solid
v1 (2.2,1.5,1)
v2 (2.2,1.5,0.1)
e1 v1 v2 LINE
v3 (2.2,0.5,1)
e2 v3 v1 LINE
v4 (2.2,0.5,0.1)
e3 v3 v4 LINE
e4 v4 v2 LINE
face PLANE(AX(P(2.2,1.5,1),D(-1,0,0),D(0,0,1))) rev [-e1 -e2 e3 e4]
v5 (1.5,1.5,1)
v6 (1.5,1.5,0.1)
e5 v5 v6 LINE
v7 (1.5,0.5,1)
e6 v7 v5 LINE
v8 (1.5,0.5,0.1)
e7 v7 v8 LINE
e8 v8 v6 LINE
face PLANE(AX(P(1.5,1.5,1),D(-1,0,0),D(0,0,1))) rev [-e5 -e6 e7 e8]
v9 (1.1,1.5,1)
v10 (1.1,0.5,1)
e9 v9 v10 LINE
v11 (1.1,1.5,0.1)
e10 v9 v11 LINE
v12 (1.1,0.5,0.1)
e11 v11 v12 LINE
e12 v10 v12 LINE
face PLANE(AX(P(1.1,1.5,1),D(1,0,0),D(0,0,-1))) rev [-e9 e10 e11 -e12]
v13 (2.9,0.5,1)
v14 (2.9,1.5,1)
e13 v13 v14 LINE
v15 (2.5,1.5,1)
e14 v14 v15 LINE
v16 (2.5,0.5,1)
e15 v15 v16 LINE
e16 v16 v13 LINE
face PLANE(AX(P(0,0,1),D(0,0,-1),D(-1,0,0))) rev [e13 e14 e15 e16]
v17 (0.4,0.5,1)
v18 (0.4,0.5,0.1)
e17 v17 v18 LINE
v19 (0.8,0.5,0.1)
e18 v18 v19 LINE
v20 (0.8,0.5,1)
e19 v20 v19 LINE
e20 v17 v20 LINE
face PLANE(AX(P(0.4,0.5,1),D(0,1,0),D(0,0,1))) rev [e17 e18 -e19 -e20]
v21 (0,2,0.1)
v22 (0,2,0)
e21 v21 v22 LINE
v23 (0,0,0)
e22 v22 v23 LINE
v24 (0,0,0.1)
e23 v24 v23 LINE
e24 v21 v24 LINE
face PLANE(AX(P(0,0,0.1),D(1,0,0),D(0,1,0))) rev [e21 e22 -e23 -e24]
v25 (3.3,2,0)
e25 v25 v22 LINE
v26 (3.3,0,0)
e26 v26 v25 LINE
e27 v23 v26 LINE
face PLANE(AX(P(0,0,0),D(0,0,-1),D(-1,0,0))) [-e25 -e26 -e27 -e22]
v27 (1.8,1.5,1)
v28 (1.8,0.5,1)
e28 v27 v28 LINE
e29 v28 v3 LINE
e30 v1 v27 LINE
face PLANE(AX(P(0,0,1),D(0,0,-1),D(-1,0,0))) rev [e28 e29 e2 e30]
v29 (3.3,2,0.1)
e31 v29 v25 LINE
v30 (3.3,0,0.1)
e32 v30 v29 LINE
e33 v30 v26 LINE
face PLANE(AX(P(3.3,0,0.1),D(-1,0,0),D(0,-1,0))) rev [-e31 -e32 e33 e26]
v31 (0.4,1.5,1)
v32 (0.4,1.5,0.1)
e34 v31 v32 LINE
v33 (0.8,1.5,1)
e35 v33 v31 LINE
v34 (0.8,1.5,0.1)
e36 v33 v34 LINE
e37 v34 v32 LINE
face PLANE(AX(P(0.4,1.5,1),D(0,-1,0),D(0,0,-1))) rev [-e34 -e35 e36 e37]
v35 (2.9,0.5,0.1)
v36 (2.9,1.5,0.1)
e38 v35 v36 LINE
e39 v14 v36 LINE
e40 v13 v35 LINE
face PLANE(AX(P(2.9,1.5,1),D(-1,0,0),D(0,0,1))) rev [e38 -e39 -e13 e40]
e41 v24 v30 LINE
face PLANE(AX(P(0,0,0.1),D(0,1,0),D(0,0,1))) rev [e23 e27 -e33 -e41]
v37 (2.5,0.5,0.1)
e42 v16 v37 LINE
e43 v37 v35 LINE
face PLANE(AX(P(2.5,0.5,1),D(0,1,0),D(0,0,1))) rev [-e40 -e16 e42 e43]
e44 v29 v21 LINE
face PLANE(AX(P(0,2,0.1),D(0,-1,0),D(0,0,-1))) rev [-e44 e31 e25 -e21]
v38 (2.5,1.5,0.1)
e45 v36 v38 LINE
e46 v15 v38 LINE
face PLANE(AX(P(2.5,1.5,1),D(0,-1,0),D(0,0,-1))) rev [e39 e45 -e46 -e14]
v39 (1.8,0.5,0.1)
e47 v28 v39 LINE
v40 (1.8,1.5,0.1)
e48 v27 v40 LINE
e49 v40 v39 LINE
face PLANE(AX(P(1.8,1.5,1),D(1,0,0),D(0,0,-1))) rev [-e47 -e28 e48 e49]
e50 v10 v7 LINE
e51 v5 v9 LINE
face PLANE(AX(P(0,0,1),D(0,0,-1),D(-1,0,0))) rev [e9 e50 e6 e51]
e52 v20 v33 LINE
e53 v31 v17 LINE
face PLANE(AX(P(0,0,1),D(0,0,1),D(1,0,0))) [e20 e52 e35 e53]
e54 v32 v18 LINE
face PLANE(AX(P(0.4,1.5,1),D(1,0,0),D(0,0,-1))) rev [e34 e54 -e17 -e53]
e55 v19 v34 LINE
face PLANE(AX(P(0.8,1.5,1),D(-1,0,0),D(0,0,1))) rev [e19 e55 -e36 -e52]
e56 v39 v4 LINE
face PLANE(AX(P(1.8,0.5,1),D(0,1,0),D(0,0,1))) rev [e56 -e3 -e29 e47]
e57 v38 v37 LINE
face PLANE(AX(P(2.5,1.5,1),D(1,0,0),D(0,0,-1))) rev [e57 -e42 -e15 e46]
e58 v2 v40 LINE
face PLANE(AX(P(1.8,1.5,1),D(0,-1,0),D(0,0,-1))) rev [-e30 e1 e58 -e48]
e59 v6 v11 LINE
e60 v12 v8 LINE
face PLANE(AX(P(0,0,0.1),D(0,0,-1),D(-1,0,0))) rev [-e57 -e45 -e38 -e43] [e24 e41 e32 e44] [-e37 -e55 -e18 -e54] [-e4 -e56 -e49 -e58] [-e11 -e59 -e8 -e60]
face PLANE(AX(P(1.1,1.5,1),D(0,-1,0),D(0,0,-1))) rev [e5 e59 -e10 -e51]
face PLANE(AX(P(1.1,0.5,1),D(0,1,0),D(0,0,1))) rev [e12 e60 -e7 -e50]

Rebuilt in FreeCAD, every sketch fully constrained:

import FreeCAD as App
import Part
import Sketcher

V = App.Vector
Q = App.Units.Quantity

doc = App.newDocument("Part")
params = doc.addObject("Spreadsheet::Sheet", "Params")
for row, (alias, value) in enumerate([
    ("sketch1_height", "2 mm"),
    ("sketch1_width", "3.3 mm"),
    ("pad1_length", "0.1 mm"),
    ("sketch2_height", "1 mm"),
    ("sketch2_width", "0.4 mm"),
    ("pad2_length", "0.9 mm"),
], start=1):
    params.set(f"A{row}", alias)
    params.set(f"B{row}", "=" + value)
    params.setAlias(f"B{row}", alias)

body = doc.addObject("PartDesign::Body", "Body")

sketch1 = doc.addObject("Sketcher::SketchObject", "Sketch")
body.addObject(sketch1)
sketch1.AttachmentSupport = (doc.XY_Plane, [""])
sketch1.MapMode = "FlatFace"
sketch1.addGeometry(Part.LineSegment(V(0, 2, 0), V(0, 0, 0)), False)
sketch1.addGeometry(Part.LineSegment(V(0, 0, 0), V(3.3, 0, 0)), False)
sketch1.addGeometry(Part.LineSegment(V(3.3, 0, 0), V(3.3, 2, 0)), False)
sketch1.addGeometry(Part.LineSegment(V(3.3, 2, 0), V(0, 2, 0)), False)
sketch1.addConstraint(Sketcher.Constraint("Coincident", 0, 2, 1, 1))
sketch1.addConstraint(Sketcher.Constraint("Coincident", 1, 2, 2, 1))
sketch1.addConstraint(Sketcher.Constraint("Coincident", 2, 2, 3, 1))
sketch1.addConstraint(Sketcher.Constraint("Coincident", 3, 2, 0, 1))
sketch1.addConstraint(Sketcher.Constraint("Vertical", 0))
sketch1.addConstraint(Sketcher.Constraint("Horizontal", 1))
sketch1.addConstraint(Sketcher.Constraint("Vertical", 2))
sketch1.addConstraint(Sketcher.Constraint("Horizontal", 3))
sketch1.addConstraint(Sketcher.Constraint("Coincident", 0, 2, -1, 1))
sketch1.addConstraint(Sketcher.Constraint("DistanceY", 0, 2, 0, 1, Q("2 mm")))
sketch1.addConstraint(Sketcher.Constraint("DistanceX", 1, 1, 1, 2, Q("3.3 mm")))
sketch1.setExpression("Constraints[9]", "Params.sketch1_height")
sketch1.setExpression("Constraints[10]", "Params.sketch1_width")
pad1 = doc.addObject("PartDesign::Pad", "Pad")
body.addObject(pad1)
pad1.Profile = sketch1
pad1.setExpression("Length", "Params.pad1_length")

sketch2 = doc.addObject("Sketcher::SketchObject", "Sketch001")
body.addObject(sketch2)
sketch2.AttachmentSupport = (doc.XY_Plane, [""])
sketch2.MapMode = "FlatFace"
sketch2.AttachmentOffset = App.Placement(V(0, 0, 0.1), App.Rotation())
sketch2.addGeometry(Part.LineSegment(V(0.4, 1.5, 0), V(0.4, 0.5, 0)), False)
sketch2.addGeometry(Part.LineSegment(V(0.4, 0.5, 0), V(0.8, 0.5, 0)), False)
sketch2.addGeometry(Part.LineSegment(V(0.8, 0.5, 0), V(0.8, 1.5, 0)), False)
sketch2.addGeometry(Part.LineSegment(V(0.8, 1.5, 0), V(0.4, 1.5, 0)), False)
sketch2.addGeometry(Part.LineSegment(V(1.1, 1.5, 0), V(1.1, 0.5, 0)), False)
sketch2.addGeometry(Part.LineSegment(V(1.1, 0.5, 0), V(1.5, 0.5, 0)), False)
sketch2.addGeometry(Part.LineSegment(V(1.5, 0.5, 0), V(1.5, 1.5, 0)), False)
sketch2.addGeometry(Part.LineSegment(V(1.5, 1.5, 0), V(1.1, 1.5, 0)), False)
sketch2.addGeometry(Part.LineSegment(V(1.8, 1.5, 0), V(1.8, 0.5, 0)), False)
sketch2.addGeometry(Part.LineSegment(V(1.8, 0.5, 0), V(2.2, 0.5, 0)), False)
sketch2.addGeometry(Part.LineSegment(V(2.2, 0.5, 0), V(2.2, 1.5, 0)), False)
sketch2.addGeometry(Part.LineSegment(V(2.2, 1.5, 0), V(1.8, 1.5, 0)), False)
sketch2.addGeometry(Part.LineSegment(V(2.5, 1.5, 0), V(2.5, 0.5, 0)), False)
sketch2.addGeometry(Part.LineSegment(V(2.5, 0.5, 0), V(2.9, 0.5, 0)), False)
sketch2.addGeometry(Part.LineSegment(V(2.9, 0.5, 0), V(2.9, 1.5, 0)), False)
sketch2.addGeometry(Part.LineSegment(V(2.9, 1.5, 0), V(2.5, 1.5, 0)), False)
sketch2.addConstraint(Sketcher.Constraint("Coincident", 0, 2, 1, 1))
sketch2.addConstraint(Sketcher.Constraint("Coincident", 1, 2, 2, 1))
sketch2.addConstraint(Sketcher.Constraint("Coincident", 2, 2, 3, 1))
sketch2.addConstraint(Sketcher.Constraint("Coincident", 3, 2, 0, 1))
sketch2.addConstraint(Sketcher.Constraint("Coincident", 4, 2, 5, 1))
sketch2.addConstraint(Sketcher.Constraint("Coincident", 5, 2, 6, 1))
sketch2.addConstraint(Sketcher.Constraint("Coincident", 6, 2, 7, 1))
sketch2.addConstraint(Sketcher.Constraint("Coincident", 7, 2, 4, 1))
sketch2.addConstraint(Sketcher.Constraint("Coincident", 8, 2, 9, 1))
sketch2.addConstraint(Sketcher.Constraint("Coincident", 9, 2, 10, 1))
sketch2.addConstraint(Sketcher.Constraint("Coincident", 10, 2, 11, 1))
sketch2.addConstraint(Sketcher.Constraint("Coincident", 11, 2, 8, 1))
sketch2.addConstraint(Sketcher.Constraint("Coincident", 12, 2, 13, 1))
sketch2.addConstraint(Sketcher.Constraint("Coincident", 13, 2, 14, 1))
sketch2.addConstraint(Sketcher.Constraint("Coincident", 14, 2, 15, 1))
sketch2.addConstraint(Sketcher.Constraint("Coincident", 15, 2, 12, 1))
sketch2.addConstraint(Sketcher.Constraint("Vertical", 0))
sketch2.addConstraint(Sketcher.Constraint("Horizontal", 1))
sketch2.addConstraint(Sketcher.Constraint("Vertical", 2))
sketch2.addConstraint(Sketcher.Constraint("Horizontal", 3))
sketch2.addConstraint(Sketcher.Constraint("Vertical", 4))
sketch2.addConstraint(Sketcher.Constraint("Horizontal", 5))
sketch2.addConstraint(Sketcher.Constraint("Vertical", 6))
sketch2.addConstraint(Sketcher.Constraint("Horizontal", 7))
sketch2.addConstraint(Sketcher.Constraint("Vertical", 8))
sketch2.addConstraint(Sketcher.Constraint("Horizontal", 9))
sketch2.addConstraint(Sketcher.Constraint("Vertical", 10))
sketch2.addConstraint(Sketcher.Constraint("Horizontal", 11))
sketch2.addConstraint(Sketcher.Constraint("Vertical", 12))
sketch2.addConstraint(Sketcher.Constraint("Horizontal", 13))
sketch2.addConstraint(Sketcher.Constraint("Vertical", 14))
sketch2.addConstraint(Sketcher.Constraint("Horizontal", 15))
sketch2.addConstraint(Sketcher.Constraint("Horizontal", 1, 2, 4, 2))
sketch2.addConstraint(Sketcher.Constraint("Horizontal", 3, 2, 6, 2))
sketch2.addConstraint(Sketcher.Constraint("Horizontal", 5, 2, 8, 2))
sketch2.addConstraint(Sketcher.Constraint("Horizontal", 7, 2, 10, 2))
sketch2.addConstraint(Sketcher.Constraint("Horizontal", 9, 2, 12, 2))
sketch2.addConstraint(Sketcher.Constraint("Horizontal", 11, 2, 14, 2))
sketch2.addConstraint(Sketcher.Constraint("Equal", 3, 5))
sketch2.addConstraint(Sketcher.Constraint("Equal", 7, 9))
sketch2.addConstraint(Sketcher.Constraint("Equal", 11, 13))
sketch2.addConstraint(Sketcher.Constraint("DistanceY", 0, 2, 0, 1, Q("1 mm")))
sketch2.addConstraint(Sketcher.Constraint("DistanceX", 1, 1, 1, 2, Q("0.4 mm")))
sketch2.addConstraint(Sketcher.Constraint("DistanceX", 1, 2, 8, 2, Q("1 mm")))
sketch2.addConstraint(Sketcher.Constraint("DistanceX", 5, 2, 12, 2, Q("1 mm")))
sketch2.addConstraint(Sketcher.Constraint("DistanceX", -1, 1, 0, 2, Q("0.4 mm")))
sketch2.addConstraint(Sketcher.Constraint("DistanceY", -1, 1, 0, 2, Q("0.5 mm")))
sketch2.addConstraint(Sketcher.Constraint("DistanceX", -1, 1, 4, 2, Q("1.1 mm")))
sketch2.setExpression("Constraints[41]", "Params.sketch2_height")
sketch2.setExpression("Constraints[42]", "Params.sketch2_width")
pad2 = doc.addObject("PartDesign::Pad", "Pad001")
body.addObject(pad2)
pad2.Profile = sketch2
pad2.setExpression("Length", "Params.pad2_length")

doc.recompute()
